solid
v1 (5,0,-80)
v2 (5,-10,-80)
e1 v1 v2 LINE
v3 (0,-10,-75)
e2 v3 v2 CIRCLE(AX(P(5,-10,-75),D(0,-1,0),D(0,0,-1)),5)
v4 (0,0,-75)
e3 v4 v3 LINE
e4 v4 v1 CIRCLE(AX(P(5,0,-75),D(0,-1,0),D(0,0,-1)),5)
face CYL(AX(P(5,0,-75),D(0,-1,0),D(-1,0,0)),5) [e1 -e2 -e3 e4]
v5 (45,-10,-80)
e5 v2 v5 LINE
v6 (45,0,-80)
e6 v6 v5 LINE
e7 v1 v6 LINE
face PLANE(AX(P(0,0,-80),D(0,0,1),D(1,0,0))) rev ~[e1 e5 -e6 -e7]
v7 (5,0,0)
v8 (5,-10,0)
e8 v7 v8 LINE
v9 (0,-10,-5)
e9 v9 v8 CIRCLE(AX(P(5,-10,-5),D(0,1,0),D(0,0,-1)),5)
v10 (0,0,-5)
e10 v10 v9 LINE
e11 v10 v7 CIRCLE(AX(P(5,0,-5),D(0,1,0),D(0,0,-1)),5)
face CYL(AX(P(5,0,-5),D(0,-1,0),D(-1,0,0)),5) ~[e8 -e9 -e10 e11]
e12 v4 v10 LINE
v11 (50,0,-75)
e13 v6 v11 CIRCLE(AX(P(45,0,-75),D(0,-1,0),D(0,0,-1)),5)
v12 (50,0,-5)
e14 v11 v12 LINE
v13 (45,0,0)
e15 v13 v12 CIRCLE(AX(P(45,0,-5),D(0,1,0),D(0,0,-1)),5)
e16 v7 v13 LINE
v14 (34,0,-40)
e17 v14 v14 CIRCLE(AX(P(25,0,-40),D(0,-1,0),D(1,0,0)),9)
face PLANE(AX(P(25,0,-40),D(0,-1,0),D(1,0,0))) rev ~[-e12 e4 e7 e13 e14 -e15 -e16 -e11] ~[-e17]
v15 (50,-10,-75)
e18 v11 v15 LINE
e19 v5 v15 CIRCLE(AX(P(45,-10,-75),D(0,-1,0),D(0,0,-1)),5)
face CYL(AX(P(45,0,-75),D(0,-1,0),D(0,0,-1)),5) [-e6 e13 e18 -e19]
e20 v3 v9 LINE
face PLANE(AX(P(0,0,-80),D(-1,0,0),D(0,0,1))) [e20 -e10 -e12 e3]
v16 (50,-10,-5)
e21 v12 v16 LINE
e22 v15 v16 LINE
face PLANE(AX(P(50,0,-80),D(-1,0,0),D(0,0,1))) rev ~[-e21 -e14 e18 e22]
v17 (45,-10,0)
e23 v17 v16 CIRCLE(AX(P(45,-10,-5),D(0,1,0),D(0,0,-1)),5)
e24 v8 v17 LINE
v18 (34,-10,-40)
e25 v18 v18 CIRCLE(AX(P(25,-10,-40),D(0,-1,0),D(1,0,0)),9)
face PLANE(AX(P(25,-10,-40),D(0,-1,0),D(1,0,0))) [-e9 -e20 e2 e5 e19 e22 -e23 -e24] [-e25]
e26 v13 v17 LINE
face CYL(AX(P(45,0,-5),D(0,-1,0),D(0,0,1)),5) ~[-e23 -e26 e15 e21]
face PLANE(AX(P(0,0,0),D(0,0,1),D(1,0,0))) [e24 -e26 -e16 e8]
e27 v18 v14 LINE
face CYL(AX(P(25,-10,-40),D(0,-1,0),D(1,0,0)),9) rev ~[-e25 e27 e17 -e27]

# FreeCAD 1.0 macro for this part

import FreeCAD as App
import Part
import Sketcher

V = App.Vector


def edges_at(feature, points):
    """Names of the edges that pass closest to the given points."""
    edges = feature.Shape.Edges
    near = lambda p: min(range(len(edges)), key=lambda i: edges[i].distToShape(Part.Vertex(*p))[0])
    return sorted({f"Edge{near(p) + 1}" for p in points})

doc = App.newDocument("Part")
body = doc.addObject("PartDesign::Body", "Body")

# Sketch on XZ plane
sketch1 = doc.addObject("Sketcher::SketchObject", "Sketch")
body.addObject(sketch1)
sketch1.AttachmentSupport = (doc.XZ_Plane, [""])
sketch1.MapMode = "FlatFace"
sketch1.addGeometry([
    Part.LineSegment(V(0, 0, 0), V(0, -80, 0)),
    Part.LineSegment(V(0, -80, 0), V(50, -80, 0)),
    Part.LineSegment(V(50, -80, 0), V(50, 0, 0)),
    Part.LineSegment(V(50, 0, 0), V(0, 0, 0)),
], False)
sketch1.addConstraint([
    Sketcher.Constraint("Coincident", 0, 2, 1, 1),
    Sketcher.Constraint("Coincident", 1, 2, 2, 1),
    Sketcher.Constraint("Coincident", 2, 2, 3, 1),
    Sketcher.Constraint("Coincident", 3, 2, 0, 1),
    Sketcher.Constraint("Vertical", 0),
    Sketcher.Constraint("Horizontal", 1),
    Sketcher.Constraint("Vertical", 2),
    Sketcher.Constraint("Horizontal", 3),
    Sketcher.Constraint("Coincident", 3, 2, -1, 1),
    Sketcher.Constraint("DistanceX", 1, 1, 1, 2, 50.0),
    Sketcher.Constraint("DistanceY", 0, 2, 0, 1, 80.0),
])
pad1 = doc.addObject("PartDesign::Pad", "Pad")
body.addObject(pad1)
pad1.Profile = sketch1
pad1.Length = 10

# Sketch on XZ plane
sketch2 = doc.addObject("Sketcher::SketchObject", "Sketch001")
body.addObject(sketch2)
sketch2.AttachmentSupport = (doc.XZ_Plane, [""])
sketch2.MapMode = "FlatFace"
sketch2.AttachmentOffset = App.Placement(V(0, 0, 10), App.Rotation())
sketch2.addGeometry(Part.Circle(V(25, -40, 0), V(0, 0, 1), 9), False)
sketch2.addConstraint([
    Sketcher.Constraint("Diameter", 0, 18.0),
    Sketcher.Constraint("DistanceX", -1, 1, 0, 3, 25.0),
    Sketcher.Constraint("DistanceY", 0, 3, -1, 1, 40.0),
])
pocket1 = doc.addObject("PartDesign::Pocket", "Pocket")
body.addObject(pocket1)
pocket1.Profile = sketch2
pocket1.Type = "ThroughAll"
doc.recompute()

fillet = doc.addObject("PartDesign::Fillet", "Fillet")
body.addObject(fillet)
fillet.Base = (pocket1, edges_at(pocket1, [
    (50, -5, 0),
    (0, -5, 0),
    (50, -5, -80),
    (0, -5, -80),
]))
fillet.Radius = 5

doc.recompute()
